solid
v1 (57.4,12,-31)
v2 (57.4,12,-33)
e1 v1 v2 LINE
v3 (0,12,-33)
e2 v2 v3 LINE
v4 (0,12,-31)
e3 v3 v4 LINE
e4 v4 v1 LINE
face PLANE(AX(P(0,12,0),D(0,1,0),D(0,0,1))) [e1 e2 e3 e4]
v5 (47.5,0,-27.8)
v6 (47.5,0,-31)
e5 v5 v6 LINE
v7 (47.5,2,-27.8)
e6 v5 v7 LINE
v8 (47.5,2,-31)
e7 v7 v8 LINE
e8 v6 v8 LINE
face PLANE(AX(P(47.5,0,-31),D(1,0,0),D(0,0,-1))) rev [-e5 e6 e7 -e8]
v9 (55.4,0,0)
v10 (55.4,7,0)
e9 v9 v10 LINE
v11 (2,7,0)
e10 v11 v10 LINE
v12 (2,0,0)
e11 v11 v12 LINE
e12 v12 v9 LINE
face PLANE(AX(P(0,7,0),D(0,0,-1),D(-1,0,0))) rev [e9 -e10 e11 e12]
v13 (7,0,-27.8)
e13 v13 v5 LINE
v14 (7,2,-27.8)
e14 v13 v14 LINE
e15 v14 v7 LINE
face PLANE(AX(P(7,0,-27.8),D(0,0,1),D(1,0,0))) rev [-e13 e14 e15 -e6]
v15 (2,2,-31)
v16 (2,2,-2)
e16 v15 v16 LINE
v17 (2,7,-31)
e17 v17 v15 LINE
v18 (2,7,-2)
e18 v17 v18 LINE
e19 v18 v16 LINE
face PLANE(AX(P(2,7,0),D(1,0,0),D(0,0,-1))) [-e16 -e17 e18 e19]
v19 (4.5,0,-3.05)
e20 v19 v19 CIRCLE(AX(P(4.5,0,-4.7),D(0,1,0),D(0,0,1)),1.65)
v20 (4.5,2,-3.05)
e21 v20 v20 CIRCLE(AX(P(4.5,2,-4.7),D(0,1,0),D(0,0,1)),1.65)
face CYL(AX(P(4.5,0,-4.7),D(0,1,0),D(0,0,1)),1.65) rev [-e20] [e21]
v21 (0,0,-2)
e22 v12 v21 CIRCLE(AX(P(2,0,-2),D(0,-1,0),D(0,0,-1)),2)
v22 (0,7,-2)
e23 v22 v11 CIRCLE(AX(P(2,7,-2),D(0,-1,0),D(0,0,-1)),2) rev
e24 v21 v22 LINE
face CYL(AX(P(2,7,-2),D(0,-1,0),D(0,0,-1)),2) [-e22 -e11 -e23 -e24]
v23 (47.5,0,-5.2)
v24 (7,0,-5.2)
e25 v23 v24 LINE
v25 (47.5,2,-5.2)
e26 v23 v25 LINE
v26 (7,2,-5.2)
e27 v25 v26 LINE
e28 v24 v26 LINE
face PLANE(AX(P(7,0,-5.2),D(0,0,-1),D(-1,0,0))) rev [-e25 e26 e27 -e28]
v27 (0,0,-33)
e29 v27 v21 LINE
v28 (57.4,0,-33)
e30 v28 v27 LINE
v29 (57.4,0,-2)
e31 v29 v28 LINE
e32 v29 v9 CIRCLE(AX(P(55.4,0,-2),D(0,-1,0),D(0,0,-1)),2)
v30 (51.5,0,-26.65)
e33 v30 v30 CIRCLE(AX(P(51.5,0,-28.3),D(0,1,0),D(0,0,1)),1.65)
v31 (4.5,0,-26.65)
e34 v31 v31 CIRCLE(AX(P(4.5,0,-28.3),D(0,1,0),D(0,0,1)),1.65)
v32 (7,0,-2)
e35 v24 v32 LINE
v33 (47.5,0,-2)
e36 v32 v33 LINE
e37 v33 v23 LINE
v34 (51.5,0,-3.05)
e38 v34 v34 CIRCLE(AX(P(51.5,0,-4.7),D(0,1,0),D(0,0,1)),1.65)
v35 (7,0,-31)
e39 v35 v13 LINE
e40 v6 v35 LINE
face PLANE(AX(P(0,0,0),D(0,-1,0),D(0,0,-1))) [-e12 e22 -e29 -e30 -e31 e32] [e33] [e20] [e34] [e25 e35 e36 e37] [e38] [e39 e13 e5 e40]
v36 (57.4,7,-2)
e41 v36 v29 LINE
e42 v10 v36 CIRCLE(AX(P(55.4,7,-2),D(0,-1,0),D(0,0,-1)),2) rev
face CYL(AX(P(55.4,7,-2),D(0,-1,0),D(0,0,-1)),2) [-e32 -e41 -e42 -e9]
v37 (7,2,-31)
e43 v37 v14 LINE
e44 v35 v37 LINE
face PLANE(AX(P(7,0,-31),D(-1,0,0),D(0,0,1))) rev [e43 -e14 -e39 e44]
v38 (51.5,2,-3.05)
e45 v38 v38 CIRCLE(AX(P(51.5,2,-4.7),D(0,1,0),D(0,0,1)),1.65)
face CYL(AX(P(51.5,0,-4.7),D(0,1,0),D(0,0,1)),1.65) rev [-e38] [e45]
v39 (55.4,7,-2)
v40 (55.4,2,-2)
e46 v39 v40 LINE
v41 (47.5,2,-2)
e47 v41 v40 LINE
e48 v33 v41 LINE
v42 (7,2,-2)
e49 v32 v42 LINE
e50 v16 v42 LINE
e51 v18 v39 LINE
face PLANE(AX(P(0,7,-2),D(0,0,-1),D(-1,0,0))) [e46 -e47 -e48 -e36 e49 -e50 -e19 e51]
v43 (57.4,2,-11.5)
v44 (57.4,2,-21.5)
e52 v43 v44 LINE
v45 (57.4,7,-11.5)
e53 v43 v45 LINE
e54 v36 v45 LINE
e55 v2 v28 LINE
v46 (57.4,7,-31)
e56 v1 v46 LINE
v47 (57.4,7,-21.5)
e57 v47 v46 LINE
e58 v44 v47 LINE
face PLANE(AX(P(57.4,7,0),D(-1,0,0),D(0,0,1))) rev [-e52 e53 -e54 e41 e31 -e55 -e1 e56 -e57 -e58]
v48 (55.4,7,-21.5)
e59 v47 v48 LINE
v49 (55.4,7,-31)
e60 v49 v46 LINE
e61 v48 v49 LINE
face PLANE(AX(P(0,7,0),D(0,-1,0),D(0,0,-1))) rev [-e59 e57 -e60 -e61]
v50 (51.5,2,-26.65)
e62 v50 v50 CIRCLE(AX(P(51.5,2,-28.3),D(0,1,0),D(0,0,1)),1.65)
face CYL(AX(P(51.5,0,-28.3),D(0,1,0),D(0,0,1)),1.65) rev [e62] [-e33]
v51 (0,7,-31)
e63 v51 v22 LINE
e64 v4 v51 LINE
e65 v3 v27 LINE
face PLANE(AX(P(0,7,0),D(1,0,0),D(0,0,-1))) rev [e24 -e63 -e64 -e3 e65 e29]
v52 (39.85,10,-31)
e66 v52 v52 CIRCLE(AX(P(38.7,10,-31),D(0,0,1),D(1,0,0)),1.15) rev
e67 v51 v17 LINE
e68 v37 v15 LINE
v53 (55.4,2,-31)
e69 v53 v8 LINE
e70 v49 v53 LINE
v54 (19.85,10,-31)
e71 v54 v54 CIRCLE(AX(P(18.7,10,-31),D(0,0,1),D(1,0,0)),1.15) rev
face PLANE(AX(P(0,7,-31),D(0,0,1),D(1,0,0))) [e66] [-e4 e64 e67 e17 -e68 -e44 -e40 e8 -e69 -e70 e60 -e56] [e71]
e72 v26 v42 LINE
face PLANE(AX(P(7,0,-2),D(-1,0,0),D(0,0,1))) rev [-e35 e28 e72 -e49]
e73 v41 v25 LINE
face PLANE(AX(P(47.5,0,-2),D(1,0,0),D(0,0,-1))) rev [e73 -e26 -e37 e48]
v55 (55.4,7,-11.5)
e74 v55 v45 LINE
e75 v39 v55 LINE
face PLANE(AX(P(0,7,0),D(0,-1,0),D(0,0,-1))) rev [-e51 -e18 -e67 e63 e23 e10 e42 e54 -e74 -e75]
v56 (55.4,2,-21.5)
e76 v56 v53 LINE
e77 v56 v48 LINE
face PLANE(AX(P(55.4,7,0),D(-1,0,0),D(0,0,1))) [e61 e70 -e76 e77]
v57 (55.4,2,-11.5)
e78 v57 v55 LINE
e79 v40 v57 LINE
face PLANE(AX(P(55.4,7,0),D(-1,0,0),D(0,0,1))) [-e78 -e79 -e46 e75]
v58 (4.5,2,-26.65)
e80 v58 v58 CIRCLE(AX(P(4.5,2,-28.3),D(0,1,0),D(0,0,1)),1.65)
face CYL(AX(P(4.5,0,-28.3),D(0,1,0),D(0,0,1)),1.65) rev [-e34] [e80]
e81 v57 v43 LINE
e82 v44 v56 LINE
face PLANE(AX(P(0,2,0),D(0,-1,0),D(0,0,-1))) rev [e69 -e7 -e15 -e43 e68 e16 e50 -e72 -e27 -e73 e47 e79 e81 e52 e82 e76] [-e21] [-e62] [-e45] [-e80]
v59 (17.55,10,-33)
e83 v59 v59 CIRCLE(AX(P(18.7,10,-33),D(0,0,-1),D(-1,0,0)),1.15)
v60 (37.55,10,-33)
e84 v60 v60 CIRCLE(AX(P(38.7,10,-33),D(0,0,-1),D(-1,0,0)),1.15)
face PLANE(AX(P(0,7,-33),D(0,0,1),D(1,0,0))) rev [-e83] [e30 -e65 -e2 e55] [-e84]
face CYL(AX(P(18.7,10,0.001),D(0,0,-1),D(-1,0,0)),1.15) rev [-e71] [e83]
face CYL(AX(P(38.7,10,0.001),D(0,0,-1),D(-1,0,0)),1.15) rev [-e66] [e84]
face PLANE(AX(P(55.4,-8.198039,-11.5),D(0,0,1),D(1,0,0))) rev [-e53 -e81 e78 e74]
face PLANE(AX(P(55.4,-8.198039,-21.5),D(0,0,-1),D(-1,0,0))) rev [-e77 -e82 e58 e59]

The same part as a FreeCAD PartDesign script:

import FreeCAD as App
import Part
import Sketcher


def edges_at(feature, points):
    """Names of the edges that pass closest to the given points."""
    edges = feature.Shape.Edges
    near = lambda p: min(range(len(edges)), key=lambda i: edges[i].distToShape(Part.Vertex(*p))[0])
    return sorted({f"Edge{near(p) + 1}" for p in points})


def faces_at(feature, points):
    """Names of the faces that lie closest to the given points."""
    faces = feature.Shape.Faces
    near = lambda p: min(range(len(faces)), key=lambda i: faces[i].distToShape(Part.Vertex(*p))[0])
    return sorted({f"Face{near(p) + 1}" for p in points})

doc = App.newDocument("Part")
body = doc.addObject("PartDesign::Body", "Body")

# Sketch on XZ plane
sketch1 = body.newObject("Sketcher::SketchObject", "Sketch")
sketch1.AttachmentSupport = (doc.getObject("XZ_Plane"), [""])
sketch1.MapMode = "FlatFace"
sketch1.addGeometry([
    Part.LineSegment(App.Vector(0, -33, 0), App.Vector(0, 0, 0)),
    Part.LineSegment(App.Vector(0, 0, 0), App.Vector(57, 0, 0)),
    Part.LineSegment(App.Vector(57, 0, 0), App.Vector(57, -33, 0)),
    Part.LineSegment(App.Vector(57, -33, 0), App.Vector(0, -33, 0)),
], False)
sketch1.addConstraint([
    Sketcher.Constraint("Coincident", 0, 2, 1, 1),
    Sketcher.Constraint("Coincident", 1, 2, 2, 1),
    Sketcher.Constraint("Coincident", 2, 2, 3, 1),
    Sketcher.Constraint("Coincident", 3, 2, 0, 1),
    Sketcher.Constraint("Vertical", 0),
    Sketcher.Constraint("Horizontal", 1),
    Sketcher.Constraint("Vertical", 2),
    Sketcher.Constraint("Horizontal", 3),
    Sketcher.Constraint("Coincident", 0, 2, -1, 1),
    Sketcher.Constraint("DistanceY", 0, 1, 0, 2, 33.0),
    Sketcher.Constraint("DistanceX", 1, 1, 1, 2, 57.4),
])
pad1 = body.newObject("PartDesign::Pad", "Pad")
pad1.Profile = sketch1
pad1.Length = 7
pad1.Reversed = True
doc.recompute()

thickness = body.newObject("PartDesign::Thickness", "Thickness")
thickness.Base = (pad1, faces_at(pad1, [(28.7, 7, -16.5)]))
thickness.Value = 2
thickness.Reversed = True
thickness.Join = "Intersection"

# Sketch on XZ plane
sketch2 = body.newObject("Sketcher::SketchObject", "Sketch001")
sketch2.AttachmentSupport = (doc.getObject("XZ_Plane"), [""])
sketch2.MapMode = "FlatFace"
sketch2.AttachmentOffset = App.Placement(App.Vector(0, 0, -2), App.Rotation())
sketch2.addGeometry([
    Part.Circle(App.Vector(4.5, -28.3, 0), App.Vector(0, 0, 1), 1.6),
    Part.Circle(App.Vector(51.5, -28.3, 0), App.Vector(0, 0, 1), 1.6),
    Part.Circle(App.Vector(4.5, -4.7, 0), App.Vector(0, 0, 1), 1.6),
    Part.Circle(App.Vector(51.5, -4.7, 0), App.Vector(0, 0, 1), 1.6),
], False)
sketch2.addConstraint([
    Sketcher.Constraint("Equal", 0, 1),
    Sketcher.Constraint("Equal", 1, 2),
    Sketcher.Constraint("Equal", 2, 3),
    Sketcher.Constraint("Horizontal", 0, 3, 1, 3),
    Sketcher.Constraint("Horizontal", 2, 3, 3, 3),
    Sketcher.Constraint("Vertical", 0, 3, 2, 3),
    Sketcher.Constraint("Vertical", 1, 3, 3, 3),
    Sketcher.Constraint("Diameter", 0, 3.3),
    Sketcher.Constraint("DistanceX", 0, 3, 1, 3, 47.0),
    Sketcher.Constraint("DistanceX", -1, 1, 0, 3, 4.5),
    Sketcher.Constraint("DistanceY", 0, 3, -1, 1, 28.3),
    Sketcher.Constraint("DistanceY", 2, 3, -1, 1, 4.7),
])
pocket1 = body.newObject("PartDesign::Pocket", "Pocket")
pocket1.Profile = sketch2
pocket1.Type = "ThroughAll"
pocket1.Reversed = True

# Sketch on XZ plane
sketch3 = body.newObject("Sketcher::SketchObject", "Sketch002")
sketch3.AttachmentSupport = (doc.getObject("XZ_Plane"), [""])
sketch3.MapMode = "FlatFace"
sketch3.AttachmentOffset = App.Placement(App.Vector(0, 0, -2), App.Rotation())
sketch3.addGeometry([
    Part.LineSegment(App.Vector(7, -31, 0), App.Vector(7, -27.8, 0)),  # 0
    Part.LineSegment(App.Vector(7, -27.8, 0), App.Vector(47.5, -27.8, 0)),  # 1
    Part.LineSegment(App.Vector(47.5, -27.8, 0), App.Vector(47.5, -31, 0)),  # 2
    Part.LineSegment(App.Vector(47.5, -31, 0), App.Vector(7, -31, 0)),  # 3
    Part.LineSegment(App.Vector(7, -5.2, 0), App.Vector(7, -2, 0)),  # 4
    Part.LineSegment(App.Vector(7, -2, 0), App.Vector(47.5, -2, 0)),  # 5
    Part.LineSegment(App.Vector(47.5, -2, 0), App.Vector(47.5, -5.2, 0)),  # 6
    Part.LineSegment(App.Vector(47.5, -5.2, 0), App.Vector(7, -5.2, 0)),  # 7
], False)
sketch3.addConstraint([
    Sketcher.Constraint("Coincident", 0, 2, 1, 1),
    Sketcher.Constraint("Coincident", 1, 2, 2, 1),
    Sketcher.Constraint("Coincident", 2, 2, 3, 1),
    Sketcher.Constraint("Coincident", 3, 2, 0, 1),
    Sketcher.Constraint("Coincident", 4, 2, 5, 1),
    Sketcher.Constraint("Coincident", 5, 2, 6, 1),
    Sketcher.Constraint("Coincident", 6, 2, 7, 1),
    Sketcher.Constraint("Coincident", 7, 2, 4, 1),
    Sketcher.Constraint("Vertical", 0),
    Sketcher.Constraint("Horizontal", 1),
    Sketcher.Constraint("Vertical", 2),
    Sketcher.Constraint("Horizontal", 3),
    Sketcher.Constraint("Vertical", 4),
    Sketcher.Constraint("Horizontal", 5),
    Sketcher.Constraint("Vertical", 6),
    Sketcher.Constraint("Horizontal", 7),
    Sketcher.Constraint("Vertical", 3, 2, 4, 2),
    Sketcher.Constraint("Vertical", 2, 2, 5, 2),
    Sketcher.Constraint("Equal", 2, 4),
    Sketcher.Constraint("DistanceX", 1, 1, 1, 2, 40.5),
    Sketcher.Constraint("DistanceY", 0, 1, 0, 2, 3.2),
    Sketcher.Constraint("DistanceX", -1, 1, 0, 2, 7.0),
    Sketcher.Constraint("DistanceY", 2, 2, -1, 1, 31.0),
    Sketcher.Constraint("DistanceY", 4, 2, -1, 1, 2.0),
])
pocket2 = body.newObject("PartDesign::Pocket", "Pocket001")
pocket2.Profile = sketch3
pocket2.Type = "ThroughAll"
pocket2.Reversed = True

# Sketch on XZ plane
sketch4 = body.newObject("Sketcher::SketchObject", "Sketch003")
sketch4.AttachmentSupport = (doc.getObject("XZ_Plane"), [""])
sketch4.MapMode = "FlatFace"
sketch4.AttachmentOffset = App.Placement(App.Vector(0, 0, -7), App.Rotation())
sketch4.addGeometry([
    Part.LineSegment(App.Vector(55.4, -21.5, 0), App.Vector(55.4, -11.5, 0)),
    Part.LineSegment(App.Vector(55.4, -11.5, 0), App.Vector(57.4, -11.5, 0)),
    Part.LineSegment(App.Vector(57.4, -11.5, 0), App.Vector(57.4, -21.5, 0)),
    Part.LineSegment(App.Vector(57.4, -21.5, 0), App.Vector(55.4, -21.5, 0)),
], False)
sketch4.addConstraint([
    Sketcher.Constraint("Coincident", 0, 2, 1, 1),
    Sketcher.Constraint("Coincident", 1, 2, 2, 1),
    Sketcher.Constraint("Coincident", 2, 2, 3, 1),
    Sketcher.Constraint("Coincident", 3, 2, 0, 1),
    Sketcher.Constraint("Vertical", 0),
    Sketcher.Constraint("Horizontal", 1),
    Sketcher.Constraint("Vertical", 2),
    Sketcher.Constraint("Horizontal", 3),
    Sketcher.Constraint("DistanceX", 1, 1, 1, 2, 2.0),
    Sketcher.Constraint("DistanceY", 0, 1, 0, 2, 10.0),
    Sketcher.Constraint("DistanceX", -1, 1, 0, 2, 55.4),
    Sketcher.Constraint("DistanceY", 0, 2, -1, 1, 11.5),
])
pocket3 = body.newObject("PartDesign::Pocket", "Pocket002")
pocket3.Profile = sketch4
pocket3.Length = 5
pocket3.Reversed = True

# Sketch on XZ plane
sketch5 = body.newObject("Sketcher::SketchObject", "Sketch004")
sketch5.AttachmentSupport = (doc.getObject("XZ_Plane"), [""])
sketch5.MapMode = "FlatFace"
sketch5.AttachmentOffset = App.Placement(App.Vector(0, 0, -7), App.Rotation())
sketch5.addGeometry([
    Part.LineSegment(App.Vector(0, -33, 0), App.Vector(0, -31, 0)),
    Part.LineSegment(App.Vector(0, -31, 0), App.Vector(57.4, -31, 0)),
    Part.LineSegment(App.Vector(57.4, -31, 0), App.Vector(57.4, -33, 0)),
    Part.LineSegment(App.Vector(57.4, -33, 0), App.Vector(0, -33, 0)),
], False)
sketch5.addConstraint([
    Sketcher.Constraint("Coincident", 0, 2, 1, 1),
    Sketcher.Constraint("Coincident", 1, 2, 2, 1),
    Sketcher.Constraint("Coincident", 2, 2, 3, 1),
    Sketcher.Constraint("Coincident", 3, 2, 0, 1),
    Sketcher.Constraint("Vertical", 0),
    Sketcher.Constraint("Horizontal", 1),
    Sketcher.Constraint("Vertical", 2),
    Sketcher.Constraint("Horizontal", 3),
    Sketcher.Constraint("PointOnObject", 0, 2, -2),
    Sketcher.Constraint("DistanceY", 0, 1, 0, 2, 2.0),
    Sketcher.Constraint("DistanceX", 1, 1, 1, 2, 57.4),
    Sketcher.Constraint("DistanceY", 0, 2, -1, 1, 31.0),
])
pad2 = body.newObject("PartDesign::Pad", "Pad001")
pad2.Profile = sketch5
pad2.Length = 5
pad2.Reversed = True

# Sketch on XY plane
sketch6 = body.newObject("Sketcher::SketchObject", "Sketch005")
sketch6.AttachmentSupport = (doc.getObject("XY_Plane"), [""])
sketch6.MapMode = "FlatFace"
sketch6.AttachmentOffset = App.Placement(App.Vector(0, 0, -33), App.Rotation())
sketch6.addGeometry(Part.Circle(App.Vector(38.7, 10, 0), App.Vector(0, 0, 1), 1.1), False)
sketch6.addConstraint([
    Sketcher.Constraint("Diameter", 0, 2.3),
    Sketcher.Constraint("DistanceY", -1, 1, 0, 3, 10.0),
    Sketcher.Constraint("DistanceX", -1, 1, 0, 3, 38.7),
])
pocket4 = body.newObject("PartDesign::Pocket", "Pocket003")
pocket4.Profile = sketch6
pocket4.Type = "UpToFirst"
pocket4.Reversed = True

# Sketch on XY plane
sketch7 = body.newObject("Sketcher::SketchObject", "Sketch006")
sketch7.AttachmentSupport = (doc.getObject("XY_Plane"), [""])
sketch7.MapMode = "FlatFace"
sketch7.AttachmentOffset = App.Placement(App.Vector(0, 0, -33), App.Rotation())
sketch7.addGeometry(Part.Circle(App.Vector(18.7, 10, 0), App.Vector(0, 0, 1), 1.1), False)
sketch7.addConstraint([
    Sketcher.Constraint("Diameter", 0, 2.3),
    Sketcher.Constraint("DistanceY", -1, 1, 0, 3, 10.0),
    Sketcher.Constraint("DistanceX", -1, 1, 0, 3, 18.7),
])
pocket5 = body.newObject("PartDesign::Pocket", "Pocket004")
pocket5.Profile = sketch7
pocket5.Type = "UpToFirst"
pocket5.Reversed = True
doc.recompute()

fillet = body.newObject("PartDesign::Fillet", "Fillet")
fillet.Base = (pocket5, edges_at(pocket5, [(57.4, 3.5, 0), (0, 3.5, 0)]))
fillet.Radius = 2

doc.recompute()
